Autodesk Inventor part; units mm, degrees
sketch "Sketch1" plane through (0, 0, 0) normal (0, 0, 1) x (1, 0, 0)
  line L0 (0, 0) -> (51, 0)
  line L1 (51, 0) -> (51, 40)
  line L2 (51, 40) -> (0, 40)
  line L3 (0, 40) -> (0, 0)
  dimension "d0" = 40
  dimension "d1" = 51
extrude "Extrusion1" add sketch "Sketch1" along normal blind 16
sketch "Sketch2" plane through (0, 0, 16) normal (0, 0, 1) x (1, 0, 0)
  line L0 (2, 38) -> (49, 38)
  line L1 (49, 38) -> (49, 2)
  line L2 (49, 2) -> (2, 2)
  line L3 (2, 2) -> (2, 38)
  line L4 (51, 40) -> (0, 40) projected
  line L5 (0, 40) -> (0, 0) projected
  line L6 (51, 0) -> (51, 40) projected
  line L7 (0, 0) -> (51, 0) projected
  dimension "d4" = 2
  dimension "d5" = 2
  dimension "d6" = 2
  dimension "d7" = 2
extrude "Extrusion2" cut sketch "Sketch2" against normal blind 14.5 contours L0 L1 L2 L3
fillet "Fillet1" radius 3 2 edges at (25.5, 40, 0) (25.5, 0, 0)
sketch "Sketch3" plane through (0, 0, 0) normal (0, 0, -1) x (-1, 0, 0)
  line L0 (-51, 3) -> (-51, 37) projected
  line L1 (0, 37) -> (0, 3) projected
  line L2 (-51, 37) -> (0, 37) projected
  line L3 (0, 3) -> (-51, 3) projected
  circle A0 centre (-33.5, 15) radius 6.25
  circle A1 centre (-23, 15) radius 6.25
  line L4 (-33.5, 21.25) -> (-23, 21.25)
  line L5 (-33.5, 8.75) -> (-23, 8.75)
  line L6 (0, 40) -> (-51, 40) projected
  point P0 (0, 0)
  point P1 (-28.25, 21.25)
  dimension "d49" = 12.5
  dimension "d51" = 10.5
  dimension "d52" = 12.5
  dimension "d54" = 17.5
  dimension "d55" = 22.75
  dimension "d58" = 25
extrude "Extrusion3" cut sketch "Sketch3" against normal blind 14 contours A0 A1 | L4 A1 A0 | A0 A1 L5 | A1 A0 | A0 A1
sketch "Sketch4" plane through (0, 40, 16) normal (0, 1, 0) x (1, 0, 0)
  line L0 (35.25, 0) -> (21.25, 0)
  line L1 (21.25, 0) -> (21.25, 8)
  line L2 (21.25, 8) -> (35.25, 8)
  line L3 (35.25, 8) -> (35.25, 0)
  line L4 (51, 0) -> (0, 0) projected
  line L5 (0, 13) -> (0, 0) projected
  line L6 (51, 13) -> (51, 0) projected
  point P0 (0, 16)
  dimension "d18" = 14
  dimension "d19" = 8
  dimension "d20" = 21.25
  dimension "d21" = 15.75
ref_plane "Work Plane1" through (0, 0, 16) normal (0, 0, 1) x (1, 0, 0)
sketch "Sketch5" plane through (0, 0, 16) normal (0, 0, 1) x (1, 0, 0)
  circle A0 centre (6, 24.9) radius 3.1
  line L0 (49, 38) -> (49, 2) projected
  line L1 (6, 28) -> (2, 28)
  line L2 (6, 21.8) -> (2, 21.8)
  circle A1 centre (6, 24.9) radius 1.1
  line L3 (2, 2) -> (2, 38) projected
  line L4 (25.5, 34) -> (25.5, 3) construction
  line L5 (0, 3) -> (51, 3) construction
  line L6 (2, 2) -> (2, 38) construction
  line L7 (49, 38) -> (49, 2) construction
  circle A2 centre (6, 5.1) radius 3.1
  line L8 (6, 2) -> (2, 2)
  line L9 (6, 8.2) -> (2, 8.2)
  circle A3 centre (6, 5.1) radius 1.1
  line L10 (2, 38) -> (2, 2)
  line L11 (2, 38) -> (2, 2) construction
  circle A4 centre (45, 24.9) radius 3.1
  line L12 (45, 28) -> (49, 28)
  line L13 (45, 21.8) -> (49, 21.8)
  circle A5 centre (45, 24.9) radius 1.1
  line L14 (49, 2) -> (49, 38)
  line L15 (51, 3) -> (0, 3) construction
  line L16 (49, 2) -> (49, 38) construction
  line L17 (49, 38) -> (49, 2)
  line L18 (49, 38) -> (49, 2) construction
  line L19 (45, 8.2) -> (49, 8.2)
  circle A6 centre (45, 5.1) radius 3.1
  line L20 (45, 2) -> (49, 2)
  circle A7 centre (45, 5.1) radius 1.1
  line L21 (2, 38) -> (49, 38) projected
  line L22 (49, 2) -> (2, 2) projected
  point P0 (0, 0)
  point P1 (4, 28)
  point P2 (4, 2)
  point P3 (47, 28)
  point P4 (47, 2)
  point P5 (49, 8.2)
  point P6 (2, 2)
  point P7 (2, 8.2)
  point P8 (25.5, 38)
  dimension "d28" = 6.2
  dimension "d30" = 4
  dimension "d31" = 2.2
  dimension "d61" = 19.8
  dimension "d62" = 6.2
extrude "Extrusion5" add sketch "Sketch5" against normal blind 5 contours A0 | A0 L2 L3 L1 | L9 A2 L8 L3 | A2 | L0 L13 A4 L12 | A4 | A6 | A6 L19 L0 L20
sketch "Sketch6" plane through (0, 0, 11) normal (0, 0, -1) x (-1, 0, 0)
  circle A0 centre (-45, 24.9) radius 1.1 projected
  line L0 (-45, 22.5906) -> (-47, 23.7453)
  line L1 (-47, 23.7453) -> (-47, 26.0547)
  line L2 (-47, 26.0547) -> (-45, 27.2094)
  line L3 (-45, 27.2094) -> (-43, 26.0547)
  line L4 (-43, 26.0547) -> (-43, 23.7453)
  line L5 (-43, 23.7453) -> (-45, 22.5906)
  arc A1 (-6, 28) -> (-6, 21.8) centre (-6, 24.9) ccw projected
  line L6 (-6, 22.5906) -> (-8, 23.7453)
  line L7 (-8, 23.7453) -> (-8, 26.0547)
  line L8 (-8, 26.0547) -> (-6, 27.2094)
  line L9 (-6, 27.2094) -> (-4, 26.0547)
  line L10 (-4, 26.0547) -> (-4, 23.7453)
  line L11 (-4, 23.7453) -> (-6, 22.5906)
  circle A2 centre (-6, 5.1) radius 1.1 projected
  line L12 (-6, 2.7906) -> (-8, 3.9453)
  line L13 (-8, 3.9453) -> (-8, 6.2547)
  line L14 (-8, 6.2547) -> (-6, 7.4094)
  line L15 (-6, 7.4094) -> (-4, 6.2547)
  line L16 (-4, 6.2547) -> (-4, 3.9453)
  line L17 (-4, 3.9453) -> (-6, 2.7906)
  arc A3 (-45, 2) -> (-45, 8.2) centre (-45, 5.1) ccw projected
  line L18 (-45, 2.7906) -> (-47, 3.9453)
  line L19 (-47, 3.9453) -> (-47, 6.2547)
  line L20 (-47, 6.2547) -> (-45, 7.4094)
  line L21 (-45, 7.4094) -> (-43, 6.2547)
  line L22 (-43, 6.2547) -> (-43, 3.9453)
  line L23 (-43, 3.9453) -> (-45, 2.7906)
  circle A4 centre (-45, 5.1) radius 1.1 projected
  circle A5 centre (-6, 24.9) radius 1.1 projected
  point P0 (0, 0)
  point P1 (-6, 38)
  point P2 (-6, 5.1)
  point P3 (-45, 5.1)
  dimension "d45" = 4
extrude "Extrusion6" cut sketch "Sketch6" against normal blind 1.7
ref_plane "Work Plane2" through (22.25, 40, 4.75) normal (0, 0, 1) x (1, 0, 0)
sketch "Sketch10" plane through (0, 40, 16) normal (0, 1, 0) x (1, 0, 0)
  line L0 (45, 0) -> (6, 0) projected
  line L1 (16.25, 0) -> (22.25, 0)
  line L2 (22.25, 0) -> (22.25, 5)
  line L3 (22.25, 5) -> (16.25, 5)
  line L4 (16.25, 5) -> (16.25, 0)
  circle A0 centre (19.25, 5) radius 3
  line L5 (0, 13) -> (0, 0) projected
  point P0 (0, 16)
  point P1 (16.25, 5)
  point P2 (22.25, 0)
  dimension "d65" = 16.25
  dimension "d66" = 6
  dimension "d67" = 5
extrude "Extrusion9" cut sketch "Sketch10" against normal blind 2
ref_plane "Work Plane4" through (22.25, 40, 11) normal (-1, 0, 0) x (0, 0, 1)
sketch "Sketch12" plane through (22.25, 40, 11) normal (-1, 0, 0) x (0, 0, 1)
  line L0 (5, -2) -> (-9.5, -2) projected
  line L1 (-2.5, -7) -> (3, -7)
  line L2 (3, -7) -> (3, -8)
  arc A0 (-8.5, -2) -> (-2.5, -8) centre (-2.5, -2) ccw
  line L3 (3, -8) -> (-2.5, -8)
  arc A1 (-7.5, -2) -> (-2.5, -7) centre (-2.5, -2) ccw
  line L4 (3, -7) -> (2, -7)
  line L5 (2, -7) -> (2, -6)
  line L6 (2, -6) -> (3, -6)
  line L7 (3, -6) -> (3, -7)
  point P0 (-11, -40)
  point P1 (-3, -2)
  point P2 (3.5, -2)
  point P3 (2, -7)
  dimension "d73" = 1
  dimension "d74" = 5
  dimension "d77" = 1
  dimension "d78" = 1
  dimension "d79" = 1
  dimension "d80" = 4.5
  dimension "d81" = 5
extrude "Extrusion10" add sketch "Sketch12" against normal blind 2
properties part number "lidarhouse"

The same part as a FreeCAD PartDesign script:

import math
import FreeCAD as App
import Part
import Sketcher
from FreeCAD import Vector
Q = App.Units.Quantity


def edges_at(feature, points):
    """Names of the edges that pass closest to the given points."""
    edges = feature.Shape.Edges
    near = lambda p: min(range(len(edges)), key=lambda i: edges[i].distToShape(Part.Vertex(*p))[0])
    return sorted({f"Edge{near(p) + 1}" for p in points})


def add_polygon(sketch, points):
    """Adds a closed chain of lines whose ends are joined by coincident constraints."""
    first, n = sketch.GeometryCount, len(points)
    for a, b in zip(points, points[1:] + points[:1]):
        sketch.addGeometry(Part.LineSegment(App.Vector(*a, 0), App.Vector(*b, 0)), False)
    for i in range(n):
        sketch.addConstraint(Sketcher.Constraint("Coincident", first + i, 2, first + (i + 1) % n, 1))

doc = App.newDocument("Part")
body = doc.addObject("PartDesign::Body", "Body")

sketch1 = body.newObject("Sketcher::SketchObject", "Sketch")
sketch1.AttachmentSupport = (doc.getObject("XY_Plane"), [""])
sketch1.MapMode = "FlatFace"
add_polygon(sketch1, [(0, 40), (0, 0), (51, 0), (51, 40)])
sketch1.addConstraint([
    Sketcher.Constraint("Vertical", 0),
    Sketcher.Constraint("Horizontal", 1),
    Sketcher.Constraint("Vertical", 2),
    Sketcher.Constraint("Horizontal", 3),
    Sketcher.Constraint("Coincident", 0, 2, -1, 1),
    Sketcher.Constraint("DistanceX", 1, 1, 1, 2, 51.0),
    Sketcher.Constraint("DistanceY", 0, 2, 0, 1, 40.0),
])
pad1 = body.newObject("PartDesign::Pad", "Pad")
pad1.Profile = sketch1
pad1.Length = 16

sketch2 = body.newObject("Sketcher::SketchObject", "Sketch001")
sketch2.AttachmentSupport = (doc.getObject("XY_Plane"), [""])
sketch2.MapMode = "FlatFace"
sketch2.AttachmentOffset = App.Placement(Vector(0, 0, 16), App.Rotation())
add_polygon(sketch2, [(49, 38), (2, 38), (2, 2), (49, 2)])
sketch2.addConstraint([
    Sketcher.Constraint("Horizontal", 0),
    Sketcher.Constraint("Vertical", 1),
    Sketcher.Constraint("Horizontal", 2),
    Sketcher.Constraint("Vertical", 3),
    Sketcher.Constraint("DistanceX", -1, 1, 0, 2, 2.0),
    Sketcher.Constraint("DistanceY", -1, 1, 1, 2, 2.0),
    Sketcher.Constraint("DistanceX", 0, 2, 0, 1, 47.0),
    Sketcher.Constraint("DistanceY", 1, 2, 1, 1, 36.0),
])
pocket1 = body.newObject("PartDesign::Pocket", "Pocket")
pocket1.Profile = sketch2
pocket1.Length = 14.5
doc.recompute()

fillet = body.newObject("PartDesign::Fillet", "Fillet")
fillet.Base = (pocket1, edges_at(pocket1, [(25.5, 40, 0), (25.5, 0, 0)]))
fillet.Radius = 3

sketch3 = body.newObject("Sketcher::SketchObject", "Sketch002")
sketch3.AttachmentSupport = (doc.getObject("XY_Plane"), [""])
sketch3.MapMode = "FlatFace"
sketch3.addGeometry([
    Part.ArcOfCircle(Part.Circle(Vector(34, 15, 0), Vector(0, 0, 1), 6), math.radians(-90), math.radians(90)),
    Part.LineSegment(Vector(34, 9, 0), Vector(23, 9, 0)),
    Part.ArcOfCircle(Part.Circle(Vector(23, 15, 0), Vector(0, 0, 1), 6), math.radians(90), math.radians(270)),
    Part.LineSegment(Vector(23, 21, 0), Vector(34, 21, 0)),
], False)
sketch3.addConstraint([
    Sketcher.Constraint("Tangent", 0, 1, 1, 1),
    Sketcher.Constraint("Tangent", 1, 2, 2, 2),
    Sketcher.Constraint("Tangent", 2, 1, 3, 1),
    Sketcher.Constraint("Tangent", 3, 2, 0, 2),
    Sketcher.Constraint("Horizontal", 1),
    Sketcher.Constraint("Horizontal", 3),
    Sketcher.Constraint("Radius", 0, 6.25),
    Sketcher.Constraint("DistanceX", 1, 2, 1, 1, 10.5),
    Sketcher.Constraint("DistanceY", -1, 1, 0, 3, 15.0),
    Sketcher.Constraint("DistanceX", -1, 1, 2, 3, 23.0),
])
pocket2 = body.newObject("PartDesign::Pocket", "Pocket001")
pocket2.Profile = sketch3
pocket2.Length = 14
pocket2.Reversed = True

sketch4 = body.newObject("Sketcher::SketchObject", "Sketch003")
sketch4.AttachmentSupport = (doc.getObject("XY_Plane"), [""])
sketch4.MapMode = "FlatFace"
sketch4.AttachmentOffset = App.Placement(Vector(0, 0, 16), App.Rotation())
sketch4.addGeometry([
    Part.ArcOfCircle(Part.Circle(Vector(6, 24.9, 0), Vector(0, 0, 1), 3.1), math.radians(-90), math.radians(90)),
    Part.LineSegment(Vector(6, 28, 0), Vector(2, 28, 0)),
    Part.LineSegment(Vector(2, 28, 0), Vector(2, 21.8, 0)),
    Part.LineSegment(Vector(2, 21.8, 0), Vector(6, 21.8, 0)),
    Part.Circle(Vector(6, 24.9, 0), Vector(0, 0, 1), 1.1),
    Part.LineSegment(Vector(6, 8.2, 0), Vector(2, 8.2, 0)),
    Part.LineSegment(Vector(2, 8.2, 0), Vector(2, 2, 0)),
    Part.LineSegment(Vector(2, 2, 0), Vector(6, 2, 0)),
    Part.ArcOfCircle(Part.Circle(Vector(6, 5.1, 0), Vector(0, 0, 1), 3.1), math.radians(-90), math.radians(90)),
    Part.Circle(Vector(6, 5.1, 0), Vector(0, 0, 1), 1.1),
    Part.LineSegment(Vector(49, 21.8, 0), Vector(49, 28, 0)),
    Part.LineSegment(Vector(49, 28, 0), Vector(45, 28, 0)),
    Part.ArcOfCircle(Part.Circle(Vector(45, 24.9, 0), Vector(0, 0, 1), 3.1), math.radians(90), math.radians(270)),
    Part.LineSegment(Vector(45, 21.8, 0), Vector(49, 21.8, 0)),
    Part.Circle(Vector(45, 24.9, 0), Vector(0, 0, 1), 1.1),
    Part.ArcOfCircle(Part.Circle(Vector(45, 5.1, 0), Vector(0, 0, 1), 3.1), math.radians(90), math.radians(270)),
    Part.LineSegment(Vector(45, 2, 0), Vector(49, 2, 0)),
    Part.LineSegment(Vector(49, 2, 0), Vector(49, 8.2, 0)),
    Part.LineSegment(Vector(49, 8.2, 0), Vector(45, 8.2, 0)),
    Part.Circle(Vector(45, 5.1, 0), Vector(0, 0, 1), 1.1),
], False)
sketch4.addConstraint([
    Sketcher.Constraint("Tangent", 0, 2, 1, 1),
    Sketcher.Constraint("Coincident", 1, 2, 2, 1),
    Sketcher.Constraint("Coincident", 2, 2, 3, 1),
    Sketcher.Constraint("Tangent", 3, 2, 0, 1),
    Sketcher.Constraint("Coincident", 5, 2, 6, 1),
    Sketcher.Constraint("Coincident", 6, 2, 7, 1),
    Sketcher.Constraint("Tangent", 7, 2, 8, 1),
    Sketcher.Constraint("Tangent", 8, 2, 5, 1),
    Sketcher.Constraint("Coincident", 10, 2, 11, 1),
    Sketcher.Constraint("Tangent", 11, 2, 12, 1),
    Sketcher.Constraint("Tangent", 12, 2, 13, 1),
    Sketcher.Constraint("Coincident", 13, 2, 10, 1),
    Sketcher.Constraint("Tangent", 15, 2, 16, 1),
    Sketcher.Constraint("Coincident", 16, 2, 17, 1),
    Sketcher.Constraint("Coincident", 17, 2, 18, 1),
    Sketcher.Constraint("Tangent", 18, 2, 15, 1),
    Sketcher.Constraint("Horizontal", 1),
    Sketcher.Constraint("Vertical", 2),
    Sketcher.Constraint("Horizontal", 3),
    Sketcher.Constraint("Horizontal", 5),
    Sketcher.Constraint("Vertical", 6),
    Sketcher.Constraint("Horizontal", 7),
    Sketcher.Constraint("Vertical", 10),
    Sketcher.Constraint("Horizontal", 11),
    Sketcher.Constraint("Horizontal", 13),
    Sketcher.Constraint("Horizontal", 16),
    Sketcher.Constraint("Vertical", 17),
    Sketcher.Constraint("Horizontal", 18),
    Sketcher.Constraint("Coincident", 4, 3, 0, 3),
    Sketcher.Constraint("Coincident", 9, 3, 8, 3),
    Sketcher.Constraint("Coincident", 14, 3, 12, 3),
    Sketcher.Constraint("Coincident", 19, 3, 15, 3),
    Sketcher.Constraint("Equal", 0, 8),
    Sketcher.Constraint("Equal", 4, 9),
    Sketcher.Constraint("Equal", 8, 12),
    Sketcher.Constraint("Equal", 9, 14),
    Sketcher.Constraint("Equal", 12, 15),
    Sketcher.Constraint("Equal", 14, 19),
    Sketcher.Constraint("Horizontal", 4, 3, 12, 3),
    Sketcher.Constraint("Horizontal", 9, 3, 15, 3),
    Sketcher.Constraint("Vertical", 4, 3, 8, 3),
    Sketcher.Constraint("Vertical", 14, 3, 15, 3),
    Sketcher.Constraint("Vertical", 2, 2, 5, 2),
    Sketcher.Constraint("Vertical", 13, 2, 16, 2),
    Sketcher.Constraint("Equal", 7, 11),
    Sketcher.Constraint("Diameter", 4, 2.2),
    Sketcher.Constraint("Radius", 0, 3.1),
    Sketcher.Constraint("DistanceX", 1, 2, 1, 1, 4.0),
    Sketcher.Constraint("DistanceY", 8, 3, 0, 3, 19.8),
    Sketcher.Constraint("DistanceX", -1, 1, 0, 3, 6.0),
    Sketcher.Constraint("DistanceX", -1, 1, 12, 3, 45.0),
    Sketcher.Constraint("DistanceY", -1, 1, 0, 2, 28.0),
])
pad2 = body.newObject("PartDesign::Pad", "Pad001")
pad2.Profile = sketch4
pad2.Length = 5
pad2.Reversed = True

sketch5 = body.newObject("Sketcher::SketchObject", "Sketch004")
sketch5.AttachmentSupport = (doc.getObject("XY_Plane"), [""])
sketch5.MapMode = "FlatFace"
sketch5.AttachmentOffset = App.Placement(Vector(0, 0, 11), App.Rotation())
add_polygon(sketch5, [(47, 23.7), (45, 22.6), (43, 23.7), (43, 26.1), (45, 27.2), (47, 26.1)])
sketch5.addGeometry(Part.Circle(Vector(45, 24.9, 0), Vector(0, 0, 1), 1.1), False)
add_polygon(sketch5, [(8, 23.7), (6, 22.6), (4, 23.7), (4, 26.1), (6, 27.2), (8, 26.1)])
sketch5.addGeometry(Part.Circle(Vector(6, 24.9, 0), Vector(0, 0, 1), 1.1), False)
add_polygon(sketch5, [(8, 3.9), (6, 2.8), (4, 3.9), (4, 6.3), (6, 7.4), (8, 6.3)])
sketch5.addGeometry(Part.Circle(Vector(6, 5.1, 0), Vector(0, 0, 1), 1.1), False)
add_polygon(sketch5, [(47, 3.9), (45, 2.8), (43, 3.9), (43, 6.3), (45, 7.4), (47, 6.3)])
sketch5.addGeometry(Part.Circle(Vector(45, 5.1, 0), Vector(0, 0, 1), 1.1), False)
sketch5.addConstraint([
    Sketcher.Constraint("Vertical", 2),
    Sketcher.Constraint("Vertical", 5),
    Sketcher.Constraint("Vertical", 9),
    Sketcher.Constraint("Vertical", 12),
    Sketcher.Constraint("Vertical", 16),
    Sketcher.Constraint("Vertical", 19),
    Sketcher.Constraint("Vertical", 23),
    Sketcher.Constraint("Vertical", 26),
    Sketcher.Constraint("Equal", 6, 13),
    Sketcher.Constraint("Equal", 13, 20),
    Sketcher.Constraint("Equal", 20, 27),
    Sketcher.Constraint("Parallel", 0, 3),
    Sketcher.Constraint("Parallel", 1, 4),
    Sketcher.Constraint("Parallel", 3, 7),
    Sketcher.Constraint("Parallel", 4, 8),
    Sketcher.Constraint("Parallel", 7, 10),
    Sketcher.Constraint("Parallel", 8, 11),
    Sketcher.Constraint("Parallel", 10, 14),
    Sketcher.Constraint("Parallel", 11, 15),
    Sketcher.Constraint("Parallel", 14, 17),
    Sketcher.Constraint("Parallel", 15, 18),
    Sketcher.Constraint("Parallel", 17, 21),
    Sketcher.Constraint("Parallel", 18, 22),
    Sketcher.Constraint("Parallel", 21, 24),
    Sketcher.Constraint("Parallel", 22, 25),
    Sketcher.Constraint("Horizontal", 6, 3, 13, 3),
    Sketcher.Constraint("Horizontal", 20, 3, 27, 3),
    Sketcher.Constraint("Horizontal", 2, 2, 4, 2),
    Sketcher.Constraint("Horizontal", 1, 2, 5, 2),
    Sketcher.Constraint("Horizontal", 0, 2, 7, 2),
    Sketcher.Constraint("Horizontal", 5, 2, 8, 2),
    Sketcher.Constraint("Horizontal", 4, 2, 9, 2),
    Sketcher.Constraint("Horizontal", 3, 2, 10, 2),
    Sketcher.Constraint("Horizontal", 9, 2, 11, 2),
    Sketcher.Constraint("Horizontal", 16, 2, 18, 2),
    Sketcher.Constraint("Horizontal", 15, 2, 19, 2),
    Sketcher.Constraint("Horizontal", 14, 2, 21, 2),
    Sketcher.Constraint("Horizontal", 19, 2, 22, 2),
    Sketcher.Constraint("Horizontal", 18, 2, 23, 2),
    Sketcher.Constraint("Horizontal", 17, 2, 24, 2),
    Sketcher.Constraint("Horizontal", 23, 2, 25, 2),
    Sketcher.Constraint("Vertical", 13, 3, 20, 3),
    Sketcher.Constraint("Vertical", 6, 3, 27, 3),
    Sketcher.Constraint("Vertical", 27, 3, 0, 2),
    Sketcher.Constraint("Vertical", 0, 2, 3, 2),
    Sketcher.Constraint("Vertical", 20, 3, 7, 2),
    Sketcher.Constraint("Vertical", 10, 2, 14, 2),
    Sketcher.Constraint("Vertical", 9, 2, 15, 2),
    Sketcher.Constraint("Vertical", 3, 2, 21, 2),
    Sketcher.Constraint("Equal", 12, 16),
    Sketcher.Constraint("DistanceX", -1, 1, 8, 2, 4.0),
    Sketcher.Constraint("DistanceX", 2, 2, 4, 2, 4.0),
    Sketcher.Constraint("Diameter", 6, 2.2),
    Sketcher.Constraint("Angle", 0, Q("-150 deg")),
    Sketcher.Constraint("DistanceX", -1, 1, 6, 3, 45.0),
    Sketcher.Constraint("DistanceY", -1, 1, 6, 3, 24.9),
    Sketcher.Constraint("DistanceY", -1, 1, 20, 3, 5.1),
    Sketcher.Constraint("DistanceY", 14, 2, 7, 2, 19.8),
    Sketcher.Constraint("DistanceY", 2, 1, 2, 2, 2.3094),
    Sketcher.Constraint("DistanceY", -1, 1, 0, 2, 22.5906),
])
pocket3 = body.newObject("PartDesign::Pocket", "Pocket002")
pocket3.Profile = sketch5
pocket3.Length = 1.7
pocket3.Reversed = True

sketch6 = body.newObject("Sketcher::SketchObject", "Sketch005")
sketch6.AttachmentSupport = (doc.getObject("XZ_Plane"), [""])
sketch6.MapMode = "FlatFace"
sketch6.AttachmentOffset = App.Placement(Vector(0, 0, -40), App.Rotation())
sketch6.addGeometry([
    Part.LineSegment(Vector(16.2, 16, 0), Vector(22.2, 16, 0)),
    Part.LineSegment(Vector(22.2, 16, 0), Vector(22.2, 11, 0)),
    Part.ArcOfCircle(Part.Circle(Vector(19.2, 11, 0), Vector(0, 0, 1), 3), math.radians(180), math.radians(360)),
    Part.LineSegment(Vector(16.2, 11, 0), Vector(16.2, 16, 0)),
], False)
sketch6.addConstraint([
    Sketcher.Constraint("Coincident", 0, 2, 1, 1),
    Sketcher.Constraint("Tangent", 1, 2, 2, 2),
    Sketcher.Constraint("Tangent", 2, 1, 3, 1),
    Sketcher.Constraint("Coincident", 3, 2, 0, 1),
    Sketcher.Constraint("Horizontal", 0),
    Sketcher.Constraint("Vertical", 1),
    Sketcher.Constraint("Vertical", 3),
    Sketcher.Constraint("Radius", 2, 3.0),
    Sketcher.Constraint("DistanceY", 1, 2, 1, 1, 5.0),
    Sketcher.Constraint("DistanceX", -1, 1, 2, 1, 16.25),
    Sketcher.Constraint("DistanceY", -1, 1, 2, 3, 11.0),
])
pocket4 = body.newObject("PartDesign::Pocket", "Pocket003")
pocket4.Profile = sketch6
pocket4.Length = 2
pocket4.Reversed = True

sketch7 = body.newObject("Sketcher::SketchObject", "Sketch006")
sketch7.AttachmentSupport = (doc.getObject("YZ_Plane"), [""])
sketch7.MapMode = "FlatFace"
sketch7.AttachmentOffset = App.Placement(Vector(0, 0, 22.25), App.Rotation())
sketch7.addGeometry([
    Part.ArcOfCircle(Part.Circle(Vector(38, 8.5, 0), Vector(0, 0, 1), 5), math.radians(180), math.radians(270)),
    Part.LineSegment(Vector(38, 3.5, 0), Vector(38, 2.5, 0)),
    Part.ArcOfCircle(Part.Circle(Vector(38, 8.5, 0), Vector(0, 0, 1), 6), math.radians(180), math.radians(270)),
    Part.LineSegment(Vector(32, 8.5, 0), Vector(32, 14, 0)),
    Part.LineSegment(Vector(32, 14, 0), Vector(34, 14, 0)),
    Part.LineSegment(Vector(34, 14, 0), Vector(34, 13, 0)),
    Part.LineSegment(Vector(34, 13, 0), Vector(33, 13, 0)),
    Part.LineSegment(Vector(33, 13, 0), Vector(33, 8.5, 0)),
], False)
sketch7.addConstraint([
    Sketcher.Constraint("Coincident", 0, 2, 1, 1),
    Sketcher.Constraint("Coincident", 1, 2, 2, 2),
    Sketcher.Constraint("Tangent", 2, 1, 3, 1),
    Sketcher.Constraint("Coincident", 3, 2, 4, 1),
    Sketcher.Constraint("Coincident", 4, 2, 5, 1),
    Sketcher.Constraint("Coincident", 5, 2, 6, 1),
    Sketcher.Constraint("Coincident", 6, 2, 7, 1),
    Sketcher.Constraint("Tangent", 7, 2, 0, 1),
    Sketcher.Constraint("Vertical", 1),
    Sketcher.Constraint("Vertical", 3),
    Sketcher.Constraint("Horizontal", 4),
    Sketcher.Constraint("Vertical", 5),
    Sketcher.Constraint("Horizontal", 6),
    Sketcher.Constraint("Vertical", 7),
    Sketcher.Constraint("Coincident", 2, 3, 0, 3),
    Sketcher.Constraint("Vertical", 2, 3, 0, 2),
    Sketcher.Constraint("Equal", 6, 1),
    Sketcher.Constraint("Equal", 1, 5),
    Sketcher.Constraint("Radius", 0, 5.0),
    Sketcher.Constraint("DistanceX", 6, 2, 6, 1, 1.0),
    Sketcher.Constraint("DistanceY", 7, 2, 7, 1, 4.5),
    Sketcher.Constraint("DistanceX", -1, 1, 0, 3, 38.0),
    Sketcher.Constraint("DistanceY", -1, 1, 3, 2, 14.0),
])
pad3 = body.newObject("PartDesign::Pad", "Pad002")
pad3.Profile = sketch7
pad3.Length = 2

doc.recompute()
